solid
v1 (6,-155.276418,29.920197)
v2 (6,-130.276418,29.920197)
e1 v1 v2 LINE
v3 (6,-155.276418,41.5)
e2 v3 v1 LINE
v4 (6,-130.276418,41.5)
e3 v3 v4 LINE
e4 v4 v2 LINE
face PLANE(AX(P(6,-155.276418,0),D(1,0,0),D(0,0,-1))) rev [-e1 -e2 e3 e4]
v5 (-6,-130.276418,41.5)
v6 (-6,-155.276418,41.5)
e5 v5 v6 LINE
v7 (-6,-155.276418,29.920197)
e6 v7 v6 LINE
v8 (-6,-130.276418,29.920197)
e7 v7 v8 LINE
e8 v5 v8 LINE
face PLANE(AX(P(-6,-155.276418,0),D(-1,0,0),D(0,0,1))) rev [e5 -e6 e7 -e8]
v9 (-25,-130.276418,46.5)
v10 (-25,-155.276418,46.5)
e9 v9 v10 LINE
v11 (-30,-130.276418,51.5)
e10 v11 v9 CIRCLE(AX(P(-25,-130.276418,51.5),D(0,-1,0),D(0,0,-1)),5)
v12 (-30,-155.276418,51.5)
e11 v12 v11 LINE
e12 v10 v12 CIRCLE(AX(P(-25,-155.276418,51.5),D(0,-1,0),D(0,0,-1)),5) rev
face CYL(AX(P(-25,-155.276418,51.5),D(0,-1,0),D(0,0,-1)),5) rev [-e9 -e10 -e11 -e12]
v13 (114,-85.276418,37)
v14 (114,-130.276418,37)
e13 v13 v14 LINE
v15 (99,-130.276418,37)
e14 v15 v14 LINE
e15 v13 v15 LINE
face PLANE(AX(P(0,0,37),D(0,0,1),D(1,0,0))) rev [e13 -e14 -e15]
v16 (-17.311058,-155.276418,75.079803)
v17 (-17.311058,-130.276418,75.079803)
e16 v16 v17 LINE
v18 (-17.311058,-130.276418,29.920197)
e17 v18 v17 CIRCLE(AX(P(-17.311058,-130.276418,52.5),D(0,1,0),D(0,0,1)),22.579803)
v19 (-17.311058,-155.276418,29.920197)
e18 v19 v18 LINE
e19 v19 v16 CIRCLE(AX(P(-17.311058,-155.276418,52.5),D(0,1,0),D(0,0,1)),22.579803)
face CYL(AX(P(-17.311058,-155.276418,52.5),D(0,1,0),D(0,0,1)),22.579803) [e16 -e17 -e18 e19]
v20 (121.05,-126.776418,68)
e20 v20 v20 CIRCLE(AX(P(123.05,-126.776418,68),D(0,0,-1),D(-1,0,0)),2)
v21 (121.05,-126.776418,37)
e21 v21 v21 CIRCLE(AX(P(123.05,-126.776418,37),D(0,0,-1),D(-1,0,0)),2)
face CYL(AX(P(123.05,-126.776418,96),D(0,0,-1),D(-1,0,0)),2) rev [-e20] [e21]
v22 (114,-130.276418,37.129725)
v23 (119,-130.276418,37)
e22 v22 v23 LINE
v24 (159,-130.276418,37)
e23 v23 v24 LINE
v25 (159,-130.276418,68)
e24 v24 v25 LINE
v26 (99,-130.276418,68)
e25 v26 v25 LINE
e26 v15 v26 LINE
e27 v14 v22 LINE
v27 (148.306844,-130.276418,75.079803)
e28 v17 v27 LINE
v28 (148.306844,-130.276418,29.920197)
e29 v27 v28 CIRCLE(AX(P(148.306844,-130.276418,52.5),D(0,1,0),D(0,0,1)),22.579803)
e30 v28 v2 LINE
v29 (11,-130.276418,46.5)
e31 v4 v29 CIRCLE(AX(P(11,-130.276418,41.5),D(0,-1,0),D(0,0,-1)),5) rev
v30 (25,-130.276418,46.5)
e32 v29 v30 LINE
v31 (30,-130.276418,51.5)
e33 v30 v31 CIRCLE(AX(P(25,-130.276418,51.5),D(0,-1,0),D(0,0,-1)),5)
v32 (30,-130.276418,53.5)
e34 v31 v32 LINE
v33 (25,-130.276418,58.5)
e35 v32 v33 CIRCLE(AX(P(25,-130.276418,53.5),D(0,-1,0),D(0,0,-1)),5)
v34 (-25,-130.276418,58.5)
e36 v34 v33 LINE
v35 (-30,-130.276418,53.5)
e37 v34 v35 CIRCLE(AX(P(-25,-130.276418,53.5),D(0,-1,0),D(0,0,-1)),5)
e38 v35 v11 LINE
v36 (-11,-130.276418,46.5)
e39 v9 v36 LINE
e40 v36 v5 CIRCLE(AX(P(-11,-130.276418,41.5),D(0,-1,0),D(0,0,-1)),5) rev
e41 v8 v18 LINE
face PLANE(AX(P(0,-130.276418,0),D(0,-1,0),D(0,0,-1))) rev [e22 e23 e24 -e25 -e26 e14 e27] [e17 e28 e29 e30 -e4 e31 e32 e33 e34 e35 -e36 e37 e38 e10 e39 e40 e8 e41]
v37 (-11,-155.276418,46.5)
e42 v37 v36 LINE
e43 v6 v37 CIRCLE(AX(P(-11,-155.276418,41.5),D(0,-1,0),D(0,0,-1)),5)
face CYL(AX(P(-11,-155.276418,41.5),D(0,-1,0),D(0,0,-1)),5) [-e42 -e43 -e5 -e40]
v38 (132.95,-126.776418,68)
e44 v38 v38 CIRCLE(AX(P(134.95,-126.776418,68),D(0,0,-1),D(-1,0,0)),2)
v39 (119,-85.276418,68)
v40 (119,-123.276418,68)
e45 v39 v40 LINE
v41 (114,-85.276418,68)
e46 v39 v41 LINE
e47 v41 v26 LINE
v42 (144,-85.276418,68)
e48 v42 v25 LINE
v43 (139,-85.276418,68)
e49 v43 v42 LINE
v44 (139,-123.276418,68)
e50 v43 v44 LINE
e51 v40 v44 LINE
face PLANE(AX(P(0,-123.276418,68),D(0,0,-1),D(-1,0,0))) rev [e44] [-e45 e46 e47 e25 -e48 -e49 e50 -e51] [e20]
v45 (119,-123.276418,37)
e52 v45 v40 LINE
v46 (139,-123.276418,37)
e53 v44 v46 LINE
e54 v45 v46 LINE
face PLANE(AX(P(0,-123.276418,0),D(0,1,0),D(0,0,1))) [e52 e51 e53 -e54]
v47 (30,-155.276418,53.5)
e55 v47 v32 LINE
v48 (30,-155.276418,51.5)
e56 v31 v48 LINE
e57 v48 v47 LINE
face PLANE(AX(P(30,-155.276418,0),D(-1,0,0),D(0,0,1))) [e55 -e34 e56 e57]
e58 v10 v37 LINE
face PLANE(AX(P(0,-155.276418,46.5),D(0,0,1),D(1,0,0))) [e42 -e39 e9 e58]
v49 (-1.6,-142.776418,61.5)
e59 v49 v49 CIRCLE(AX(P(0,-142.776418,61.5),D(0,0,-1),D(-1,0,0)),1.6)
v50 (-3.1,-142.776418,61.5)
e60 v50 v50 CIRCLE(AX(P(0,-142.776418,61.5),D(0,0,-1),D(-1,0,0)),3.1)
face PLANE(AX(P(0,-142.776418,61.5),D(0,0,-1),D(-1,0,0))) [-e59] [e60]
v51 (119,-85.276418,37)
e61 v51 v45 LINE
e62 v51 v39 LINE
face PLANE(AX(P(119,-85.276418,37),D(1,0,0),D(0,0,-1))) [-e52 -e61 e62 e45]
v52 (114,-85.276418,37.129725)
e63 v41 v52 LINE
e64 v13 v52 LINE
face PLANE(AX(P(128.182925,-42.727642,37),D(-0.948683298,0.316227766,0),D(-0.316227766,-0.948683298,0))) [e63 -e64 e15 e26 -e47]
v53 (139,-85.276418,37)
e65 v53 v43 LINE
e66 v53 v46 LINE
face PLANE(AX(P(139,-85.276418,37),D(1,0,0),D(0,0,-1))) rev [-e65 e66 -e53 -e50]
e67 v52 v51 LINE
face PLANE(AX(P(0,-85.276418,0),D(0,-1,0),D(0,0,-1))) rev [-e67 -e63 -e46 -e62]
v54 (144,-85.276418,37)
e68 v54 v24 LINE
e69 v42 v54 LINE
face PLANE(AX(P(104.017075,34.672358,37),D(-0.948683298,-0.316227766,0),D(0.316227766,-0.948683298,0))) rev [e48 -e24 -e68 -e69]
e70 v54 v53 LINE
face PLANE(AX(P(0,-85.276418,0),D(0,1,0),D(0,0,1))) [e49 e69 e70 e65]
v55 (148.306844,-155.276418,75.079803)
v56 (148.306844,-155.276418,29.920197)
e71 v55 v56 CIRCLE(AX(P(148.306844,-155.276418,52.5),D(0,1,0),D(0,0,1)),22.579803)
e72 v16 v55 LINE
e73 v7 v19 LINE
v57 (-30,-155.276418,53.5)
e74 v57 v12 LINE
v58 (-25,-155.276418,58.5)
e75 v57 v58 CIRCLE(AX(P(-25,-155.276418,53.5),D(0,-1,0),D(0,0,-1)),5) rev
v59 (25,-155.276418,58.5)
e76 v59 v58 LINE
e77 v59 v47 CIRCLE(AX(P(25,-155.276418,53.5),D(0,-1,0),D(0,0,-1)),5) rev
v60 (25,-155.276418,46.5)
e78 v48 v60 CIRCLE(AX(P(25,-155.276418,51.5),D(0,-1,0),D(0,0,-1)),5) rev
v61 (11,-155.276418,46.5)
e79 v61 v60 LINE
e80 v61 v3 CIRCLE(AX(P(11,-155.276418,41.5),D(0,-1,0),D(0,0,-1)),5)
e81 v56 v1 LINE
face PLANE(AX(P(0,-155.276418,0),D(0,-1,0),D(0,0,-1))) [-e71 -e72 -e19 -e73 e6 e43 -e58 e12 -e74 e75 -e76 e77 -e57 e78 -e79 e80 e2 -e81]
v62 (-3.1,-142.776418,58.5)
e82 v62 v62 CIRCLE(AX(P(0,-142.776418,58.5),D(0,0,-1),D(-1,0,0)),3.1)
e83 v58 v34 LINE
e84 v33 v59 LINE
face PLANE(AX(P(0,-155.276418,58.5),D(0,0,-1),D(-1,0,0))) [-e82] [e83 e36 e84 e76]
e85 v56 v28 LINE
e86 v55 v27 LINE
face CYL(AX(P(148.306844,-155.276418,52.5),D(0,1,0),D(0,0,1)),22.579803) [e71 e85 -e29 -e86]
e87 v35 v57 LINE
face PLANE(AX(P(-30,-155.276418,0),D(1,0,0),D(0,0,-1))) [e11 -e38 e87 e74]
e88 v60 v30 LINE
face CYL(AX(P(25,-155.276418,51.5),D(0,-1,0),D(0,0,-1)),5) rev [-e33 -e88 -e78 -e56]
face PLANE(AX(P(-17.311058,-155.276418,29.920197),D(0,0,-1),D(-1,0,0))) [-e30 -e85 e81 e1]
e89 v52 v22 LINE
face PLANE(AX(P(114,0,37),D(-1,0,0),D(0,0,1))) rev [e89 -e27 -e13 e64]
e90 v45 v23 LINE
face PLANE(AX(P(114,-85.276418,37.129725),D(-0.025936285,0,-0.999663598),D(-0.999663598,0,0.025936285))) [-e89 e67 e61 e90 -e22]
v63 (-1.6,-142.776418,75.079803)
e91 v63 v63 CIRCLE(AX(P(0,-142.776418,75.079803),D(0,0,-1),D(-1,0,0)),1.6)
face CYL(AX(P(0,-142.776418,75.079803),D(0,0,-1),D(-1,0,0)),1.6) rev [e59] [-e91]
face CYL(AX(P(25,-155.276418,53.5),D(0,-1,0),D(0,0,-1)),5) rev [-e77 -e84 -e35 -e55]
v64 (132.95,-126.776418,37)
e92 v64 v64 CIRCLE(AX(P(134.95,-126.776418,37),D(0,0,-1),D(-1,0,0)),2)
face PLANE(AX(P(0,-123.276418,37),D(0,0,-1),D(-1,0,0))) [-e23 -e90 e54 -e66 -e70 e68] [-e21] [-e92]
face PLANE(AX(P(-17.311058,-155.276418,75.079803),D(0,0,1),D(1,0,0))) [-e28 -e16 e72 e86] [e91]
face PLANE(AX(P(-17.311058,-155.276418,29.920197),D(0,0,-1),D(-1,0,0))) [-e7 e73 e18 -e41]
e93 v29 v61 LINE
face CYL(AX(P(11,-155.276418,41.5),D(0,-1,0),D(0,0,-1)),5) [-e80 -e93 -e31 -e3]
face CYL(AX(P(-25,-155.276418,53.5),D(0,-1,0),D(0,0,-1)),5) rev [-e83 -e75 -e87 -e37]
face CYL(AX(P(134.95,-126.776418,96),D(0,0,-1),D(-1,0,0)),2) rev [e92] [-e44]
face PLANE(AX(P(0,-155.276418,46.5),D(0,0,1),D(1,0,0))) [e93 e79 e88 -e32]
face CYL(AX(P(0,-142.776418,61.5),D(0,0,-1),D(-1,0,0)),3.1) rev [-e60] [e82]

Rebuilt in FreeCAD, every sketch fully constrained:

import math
import FreeCAD as App
import Part
import Sketcher


def edges_at(feature, points):
    """Names of the edges that pass closest to the given points."""
    edges = feature.Shape.Edges
    near = lambda p: min(range(len(edges)), key=lambda i: edges[i].distToShape(Part.Vertex(*p))[0])
    return sorted({f"Edge{near(p) + 1}" for p in points})


def add_polygon(sketch, points):
    """Adds a closed chain of lines whose ends are joined by coincident constraints."""
    first, n = sketch.GeometryCount, len(points)
    for a, b in zip(points, points[1:] + points[:1]):
        sketch.addGeometry(Part.LineSegment(App.Vector(*a, 0), App.Vector(*b, 0)), False)
    for i in range(n):
        sketch.addConstraint(Sketcher.Constraint("Coincident", first + i, 2, first + (i + 1) % n, 1))

doc = App.newDocument("Part")
params = doc.addObject("Spreadsheet::Sheet", "Params")
for row, (alias, value) in enumerate([
    ("sketch1_radius", "10 mm"),
    ("sketch1_diameter", "3.97 mm"),
    ("pad1_length", "12 mm"),
    ("sketch2_height", "6 mm"),
    ("sketch3_width", "20 mm"),
    ("sketch4_radius", "10 mm"),
    ("sketch4_diameter", "3.97 mm"),
    ("pad2_length", "5 mm"),
    ("sketch5_radius", "10 mm"),
    ("sketch5_diameter", "3.97 mm"),
    ("pad3_length", "5 mm"),
    ("sketch6_width", "30 mm"),
    ("sketch6_height", "10.08 mm"),
    ("sketch7_width", "12 mm"),
    ("pad4_length", "100 mm"),
    ("sketch8_width", "237 mm"),
    ("sketch8_height", "150 mm"),
    ("pad5_length", "25 mm"),
    ("sketch9_width", "20 mm"),
    ("sketch9_height", "31 mm"),
    ("pad6_length", "7 mm"),
    ("sketch10_width", "5 mm"),
    ("sketch10_height", "31 mm"),
    ("pad7_length", "45 mm"),
    ("sketch11_width", "15 mm"),
    ("sketch11_height", "45 mm"),
    ("pad8_length", "31 mm"),
    ("sketch12_diameter", "4 mm"),
    ("sketch13_width", "30 mm"),
    ("sketch13_height", "10.48 mm"),
    ("fillet_radius", "10 mm"),
    ("sketch14_width", "10 mm"),
    ("sketch14_height", "50 mm"),
    ("pad9_length", "12 mm"),
    ("sketch15_width", "50 mm"),
    ("sketch15_height", "10 mm"),
    ("pad10_length", "12 mm"),
    ("sketch16_width", "12 mm"),
    ("pad11_length", "72 mm"),
    ("sketch17_width", "12 mm"),
    ("pad12_length", "34.5 mm"),
    ("sketch18_height", "12 mm"),
    ("sketch20_diameter", "3.4 mm"),
    ("sketch21_width", "60 mm"),
    ("sketch21_width2", "12 mm"),
    ("sketch21_height", "46.5 mm"),
    ("pad13_length", "12 mm"),
    ("pocket9_length", "12 mm"),
    ("sketch23_width", "12 mm"),
    ("pad14_length", "25 mm"),
    ("sketch24_width", "24 mm"),
    ("sketch24_height", "12 mm"),
    ("pad15_length", "12 mm"),
    ("pad15_length2", "25 mm"),
    ("sketch25_width", "24 mm"),
    ("sketch25_width2", "60 mm"),
    ("sketch25_height", "12 mm"),
    ("sketch26_diameter", "6.2 mm"),
    ("pocket11_length", "3 mm"),
    ("sketch27_diameter", "3.2 mm"),
    ("fillet2_radius", "5 mm"),
    ("fillet3_radius", "5 mm"),
], start=1):
    params.set(f"A{row}", alias)
    params.set(f"B{row}", "=" + value)
    params.setAlias(f"B{row}", alias)

body = doc.addObject("PartDesign::Body", "Body")

# Sketch on XY plane
sketch1 = body.newObject("Sketcher::SketchObject", "Sketch")
sketch1.AttachmentSupport = (doc.getObject("XY_Plane"), [""])
sketch1.MapMode = "FlatFace"
sketch1.addGeometry(Part.LineSegment(App.Vector(-10, 0, 0), App.Vector(-10, -30.276418, 0)), False)
sketch1.addGeometry(Part.LineSegment(App.Vector(-10, -30.276418, 0), App.Vector(10, -30.276418, 0)), False)
sketch1.addGeometry(Part.LineSegment(App.Vector(10, -30.276418, 0), App.Vector(10, 0, 0)), False)
sketch1.addGeometry(Part.ArcOfCircle(Part.Circle(App.Vector(0, 0, 0), App.Vector(0, 0, 1), 10), math.radians(0), math.radians(180)), False)
sketch1.addGeometry(Part.Circle(App.Vector(0, 0, 0), App.Vector(0, 0, 1), 1.985), False)
sketch1.addConstraint(Sketcher.Constraint("Coincident", 0, 2, 1, 1))
sketch1.addConstraint(Sketcher.Constraint("Coincident", 1, 2, 2, 1))
sketch1.addConstraint(Sketcher.Constraint("Tangent", 2, 2, 3, 1))
sketch1.addConstraint(Sketcher.Constraint("Tangent", 3, 2, 0, 1))
sketch1.addConstraint(Sketcher.Constraint("Vertical", 0))
sketch1.addConstraint(Sketcher.Constraint("Horizontal", 1))
sketch1.addConstraint(Sketcher.Constraint("Vertical", 2))
sketch1.addConstraint(Sketcher.Constraint("Coincident", 3, 3, -1, 1))
sketch1.addConstraint(Sketcher.Constraint("Coincident", 4, 3, -1, 1))
sketch1.addConstraint(Sketcher.Constraint("Radius", 3, 10.0))
sketch1.addConstraint(Sketcher.Constraint("Diameter", 4, 3.97))
sketch1.addConstraint(Sketcher.Constraint("DistanceY", 0, 2, 0, 1, 30.276418))
sketch1.setExpression("Constraints[9]", "Params.sketch1_radius")
sketch1.setExpression("Constraints[10]", "Params.sketch1_diameter")
pad1 = body.newObject("PartDesign::Pad", "Pad")
pad1.Profile = sketch1
pad1.setExpression("Length", "Params.pad1_length")

# Sketch on YZ plane
sketch2 = body.newObject("Sketcher::SketchObject", "Sketch001")
sketch2.AttachmentSupport = (doc.getObject("YZ_Plane"), [""])
sketch2.MapMode = "FlatFace"
sketch2.AttachmentOffset = App.Placement(App.Vector(0, 0, 10), App.Rotation())
add_polygon(sketch2, [(15.780779, 3), (15.780779, 9), (0, 9), (-20, 8.600534), (-20, 3)])  # lines 0-4
sketch2.addConstraint(Sketcher.Constraint("Vertical", 0))
sketch2.addConstraint(Sketcher.Constraint("Horizontal", 1))
sketch2.addConstraint(Sketcher.Constraint("Vertical", 3))
sketch2.addConstraint(Sketcher.Constraint("Horizontal", 4))
sketch2.addConstraint(Sketcher.Constraint("PointOnObject", 1, 2, -2))
sketch2.addConstraint(Sketcher.Constraint("DistanceY", 0, 1, 0, 2, 6.0))
sketch2.addConstraint(Sketcher.Constraint("DistanceY", -1, 1, 0, 2, 9.0))
sketch2.addConstraint(Sketcher.Constraint("DistanceX", 2, 2, -1, 1, 20.0))
sketch2.addConstraint(Sketcher.Constraint("DistanceX", 1, 2, 1, 1, 15.780779))
sketch2.addConstraint(Sketcher.Constraint("Distance", 2, 20.003989))
sketch2.setExpression("Constraints[10]", "Params.sketch2_height")
pocket1 = body.newObject("PartDesign::Pocket", "Pocket")
pocket1.Profile = sketch2
pocket1.Type = "ThroughAll"

# Sketch on YZ plane
sketch3 = body.newObject("Sketcher::SketchObject", "Sketch002")
sketch3.AttachmentSupport = (doc.getObject("YZ_Plane"), [""])
sketch3.MapMode = "FlatFace"
sketch3.AttachmentOffset = App.Placement(App.Vector(0, 0, 10), App.Rotation())
add_polygon(sketch3, [(0, 9), (-20, 9), (-20, 8.600534)])  # lines 0-2
sketch3.addConstraint(Sketcher.Constraint("Horizontal", 0))
sketch3.addConstraint(Sketcher.Constraint("Vertical", 1))
sketch3.addConstraint(Sketcher.Constraint("PointOnObject", 2, 2, -2))
sketch3.addConstraint(Sketcher.Constraint("DistanceX", 0, 2, 0, 1, 20.0))
sketch3.addConstraint(Sketcher.Constraint("DistanceY", -1, 1, 0, 2, 9.0))
sketch3.addConstraint(Sketcher.Constraint("Distance", 2, 20.003989))
sketch3.setExpression("Constraints[6]", "Params.sketch3_width")
pocket2 = body.newObject("PartDesign::Pocket", "Pocket001")
pocket2.Profile = sketch3
pocket2.Type = "ThroughAll"

# Sketch on XY plane
sketch4 = body.newObject("Sketcher::SketchObject", "Sketch003")
sketch4.AttachmentSupport = (doc.getObject("XY_Plane"), [""])
sketch4.MapMode = "FlatFace"
sketch4.AttachmentOffset = App.Placement(App.Vector(0, 0, 12), App.Rotation())
sketch4.addGeometry(Part.ArcOfCircle(Part.Circle(App.Vector(0, 0, 0), App.Vector(0, 0, 1), 10), math.radians(0), math.radians(180)), False)
sketch4.addGeometry(Part.LineSegment(App.Vector(-10, 0, 0), App.Vector(-10, -30.276418, 0)), False)
sketch4.addGeometry(Part.LineSegment(App.Vector(-10, -30.276418, 0), App.Vector(10, -30.276418, 0)), False)
sketch4.addGeometry(Part.LineSegment(App.Vector(10, -30.276418, 0), App.Vector(10, 0, 0)), False)
sketch4.addGeometry(Part.Circle(App.Vector(0, 0, 0), App.Vector(0, 0, 1), 1.985), False)
sketch4.addConstraint(Sketcher.Constraint("Tangent", 0, 2, 1, 1))
sketch4.addConstraint(Sketcher.Constraint("Coincident", 1, 2, 2, 1))
sketch4.addConstraint(Sketcher.Constraint("Coincident", 2, 2, 3, 1))
sketch4.addConstraint(Sketcher.Constraint("Tangent", 3, 2, 0, 1))
sketch4.addConstraint(Sketcher.Constraint("Vertical", 1))
sketch4.addConstraint(Sketcher.Constraint("Horizontal", 2))
sketch4.addConstraint(Sketcher.Constraint("Vertical", 3))
sketch4.addConstraint(Sketcher.Constraint("Coincident", 0, 3, -1, 1))
sketch4.addConstraint(Sketcher.Constraint("Coincident", 4, 3, -1, 1))
sketch4.addConstraint(Sketcher.Constraint("Radius", 0, 10.0))
sketch4.addConstraint(Sketcher.Constraint("Diameter", 4, 3.97))
sketch4.addConstraint(Sketcher.Constraint("DistanceY", 1, 2, 1, 1, 30.276418))
sketch4.setExpression("Constraints[9]", "Params.sketch4_radius")
sketch4.setExpression("Constraints[10]", "Params.sketch4_diameter")
pad2 = body.newObject("PartDesign::Pad", "Pad001")
pad2.Profile = sketch4
pad2.setExpression("Length", "Params.pad2_length")

# Sketch on XY plane
sketch5 = body.newObject("Sketcher::SketchObject", "Sketch004")
sketch5.AttachmentSupport = (doc.getObject("XY_Plane"), [""])
sketch5.MapMode = "FlatFace"
sketch5.addGeometry(Part.ArcOfCircle(Part.Circle(App.Vector(0, 0, 0), App.Vector(0, 0, 1), 10), math.radians(0), math.radians(180)), False)
sketch5.addGeometry(Part.LineSegment(App.Vector(10, 0, 0), App.Vector(10, -30.276418, 0)), False)
sketch5.addGeometry(Part.LineSegment(App.Vector(10, -30.276418, 0), App.Vector(-10, -30.276418, 0)), False)
sketch5.addGeometry(Part.LineSegment(App.Vector(-10, -30.276418, 0), App.Vector(-10, 0, 0)), False)
sketch5.addGeometry(Part.Circle(App.Vector(0, 0, 0), App.Vector(0, 0, 1), 1.985), False)
sketch5.addConstraint(Sketcher.Constraint("Tangent", 0, 1, 1, 1))
sketch5.addConstraint(Sketcher.Constraint("Coincident", 1, 2, 2, 1))
sketch5.addConstraint(Sketcher.Constraint("Coincident", 2, 2, 3, 1))
sketch5.addConstraint(Sketcher.Constraint("Tangent", 3, 2, 0, 2))
sketch5.addConstraint(Sketcher.Constraint("Vertical", 1))
sketch5.addConstraint(Sketcher.Constraint("Horizontal", 2))
sketch5.addConstraint(Sketcher.Constraint("Vertical", 3))
sketch5.addConstraint(Sketcher.Constraint("Coincident", 0, 3, -1, 1))
sketch5.addConstraint(Sketcher.Constraint("Coincident", 4, 3, -1, 1))
sketch5.addConstraint(Sketcher.Constraint("Radius", 0, 10.0))
sketch5.addConstraint(Sketcher.Constraint("Diameter", 4, 3.97))
sketch5.addConstraint(Sketcher.Constraint("DistanceY", 1, 2, 1, 1, 30.276418))
sketch5.setExpression("Constraints[9]", "Params.sketch5_radius")
sketch5.setExpression("Constraints[10]", "Params.sketch5_diameter")
pad3 = body.newObject("PartDesign::Pad", "Pad002")
pad3.Profile = sketch5
pad3.setExpression("Length", "Params.pad3_length")
pad3.Reversed = True

# Sketch on YZ plane
sketch6 = body.newObject("Sketcher::SketchObject", "Sketch005")
sketch6.AttachmentSupport = (doc.getObject("YZ_Plane"), [""])
sketch6.MapMode = "FlatFace"
sketch6.AttachmentOffset = App.Placement(App.Vector(0, 0, -10), App.Rotation())
add_polygon(sketch6, [(10, 11.04), (10, 0.96), (-20, 0.96), (-20, 11.04)])  # lines 0-3
sketch6.addConstraint(Sketcher.Constraint("Vertical", 0))
sketch6.addConstraint(Sketcher.Constraint("Horizontal", 1))
sketch6.addConstraint(Sketcher.Constraint("Vertical", 2))
sketch6.addConstraint(Sketcher.Constraint("Horizontal", 3))
sketch6.addConstraint(Sketcher.Constraint("DistanceX", 1, 2, 1, 1, 30.0))
sketch6.addConstraint(Sketcher.Constraint("DistanceX", -1, 1, 0, 2, 10.0))
sketch6.addConstraint(Sketcher.Constraint("DistanceY", 0, 2, 0, 1, 10.08))
sketch6.addConstraint(Sketcher.Constraint("DistanceY", -1, 1, 0, 2, 0.96))
sketch6.setExpression("Constraints[8]", "Params.sketch6_width")
sketch6.setExpression("Constraints[10]", "Params.sketch6_height")
pocket3 = body.newObject("PartDesign::Pocket", "Pocket002")
pocket3.Profile = sketch6
pocket3.Type = "ThroughAll"
pocket3.Reversed = True

# Sketch on XZ plane
sketch7 = body.newObject("Sketcher::SketchObject", "Sketch006")
sketch7.AttachmentSupport = (doc.getObject("XZ_Plane"), [""])
sketch7.MapMode = "FlatFace"
sketch7.AttachmentOffset = App.Placement(App.Vector(0, 0, 30.276418), App.Rotation())
add_polygon(sketch7, [(6, 12), (-6, 12), (-6, 0), (6, 0)])  # lines 0-3
sketch7.addConstraint(Sketcher.Constraint("Horizontal", 0))
sketch7.addConstraint(Sketcher.Constraint("Vertical", 1))
sketch7.addConstraint(Sketcher.Constraint("Horizontal", 2))
sketch7.addConstraint(Sketcher.Constraint("Vertical", 3))
sketch7.addConstraint(Sketcher.Constraint("Symmetric", 1, 2, 2, 2, -1, 1))
sketch7.addConstraint(Sketcher.Constraint("Equal", 2, 1))
sketch7.addConstraint(Sketcher.Constraint("DistanceX", 0, 2, 0, 1, 12.0))
sketch7.setExpression("Constraints[10]", "Params.sketch7_width")
pad4 = body.newObject("PartDesign::Pad", "Pad003")
pad4.Profile = sketch7
pad4.setExpression("Length", "Params.pad4_length")

# Sketch on XZ plane
sketch8 = body.newObject("Sketcher::SketchObject", "Sketch007")
sketch8.AttachmentSupport = (doc.getObject("XZ_Plane"), [""])
sketch8.MapMode = "FlatFace"
sketch8.AttachmentOffset = App.Placement(App.Vector(0, 0, 130.276418), App.Rotation())
add_polygon(sketch8, [(176, -54), (176, 96), (-61, 96), (-61, -54)])  # lines 0-3
sketch8.addConstraint(Sketcher.Constraint("Vertical", 0))
sketch8.addConstraint(Sketcher.Constraint("Horizontal", 1))
sketch8.addConstraint(Sketcher.Constraint("Vertical", 2))
sketch8.addConstraint(Sketcher.Constraint("Horizontal", 3))
sketch8.addConstraint(Sketcher.Constraint("DistanceX", 1, 2, 1, 1, 237.0))
sketch8.addConstraint(Sketcher.Constraint("DistanceY", 0, 1, 0, 2, 150.0))
sketch8.addConstraint(Sketcher.Constraint("DistanceX", -1, 1, 0, 2, 176.0))
sketch8.addConstraint(Sketcher.Constraint("DistanceY", -1, 1, 0, 2, 96.0))
sketch8.setExpression("Constraints[8]", "Params.sketch8_width")
sketch8.setExpression("Constraints[9]", "Params.sketch8_height")
pad5 = body.newObject("PartDesign::Pad", "Pad004")
pad5.Profile = sketch8
pad5.setExpression("Length", "Params.pad5_length")

# Sketch on XZ plane
sketch9 = body.newObject("Sketcher::SketchObject", "Sketch008")
sketch9.AttachmentSupport = (doc.getObject("XZ_Plane"), [""])
sketch9.MapMode = "FlatFace"
sketch9.AttachmentOffset = App.Placement(App.Vector(0, 0, 130.276418), App.Rotation())
add_polygon(sketch9, [(119, 68), (139, 68), (139, 37), (119, 37)])  # lines 0-3
sketch9.addConstraint(Sketcher.Constraint("Horizontal", 0))
sketch9.addConstraint(Sketcher.Constraint("Vertical", 1))
sketch9.addConstraint(Sketcher.Constraint("Horizontal", 2))
sketch9.addConstraint(Sketcher.Constraint("Vertical", 3))
sketch9.addConstraint(Sketcher.Constraint("DistanceX", 0, 1, 0, 2, 20.0))
sketch9.addConstraint(Sketcher.Constraint("DistanceY", 1, 2, 1, 1, 31.0))
sketch9.addConstraint(Sketcher.Constraint("DistanceX", -1, 1, 0, 2, 139.0))
sketch9.addConstraint(Sketcher.Constraint("DistanceY", -1, 1, 0, 2, 68.0))
sketch9.setExpression("Constraints[8]", "Params.sketch9_width")
sketch9.setExpression("Constraints[9]", "Params.sketch9_height")
pad6 = body.newObject("PartDesign::Pad", "Pad005")
pad6.Profile = sketch9
pad6.setExpression("Length", "Params.pad6_length")
pad6.Reversed = True

# Sketch on XZ plane
sketch10 = body.newObject("Sketcher::SketchObject", "Sketch009")
sketch10.AttachmentSupport = (doc.getObject("XZ_Plane"), [""])
sketch10.MapMode = "FlatFace"
sketch10.AttachmentOffset = App.Placement(App.Vector(0, 0, 130.276418), App.Rotation())
add_polygon(sketch10, [(114, 68), (119, 68), (119, 37), (114, 37.129725)])  # lines 0-3
add_polygon(sketch10, [(139, 37), (139, 68), (144, 68), (144, 37)])  # lines 4-7
sketch10.addConstraint(Sketcher.Constraint("Horizontal", 0))
sketch10.addConstraint(Sketcher.Constraint("Vertical", 1))
sketch10.addConstraint(Sketcher.Constraint("Vertical", 3))
sketch10.addConstraint(Sketcher.Constraint("Vertical", 4))
sketch10.addConstraint(Sketcher.Constraint("Horizontal", 5))
sketch10.addConstraint(Sketcher.Constraint("Vertical", 6))
sketch10.addConstraint(Sketcher.Constraint("Horizontal", 7))
sketch10.addConstraint(Sketcher.Constraint("Horizontal", 3, 2, 4, 2))
sketch10.addConstraint(Sketcher.Constraint("Horizontal", 1, 2, 6, 2))
sketch10.addConstraint(Sketcher.Constraint("Equal", 0, 5))
sketch10.addConstraint(Sketcher.Constraint("DistanceX", 0, 1, 0, 2, 5.0))
sketch10.addConstraint(Sketcher.Constraint("DistanceY", 1, 2, 1, 1, 31.0))
sketch10.addConstraint(Sketcher.Constraint("DistanceX", -1, 1, 0, 2, 119.0))
sketch10.addConstraint(Sketcher.Constraint("DistanceY", -1, 1, 0, 2, 68.0))
sketch10.addConstraint(Sketcher.Constraint("DistanceX", -1, 1, 4, 2, 139.0))
sketch10.addConstraint(Sketcher.Constraint("DistanceY", 3, 1, 3, 2, 30.870275))
sketch10.setExpression("Constraints[18]", "Params.sketch10_width")
sketch10.setExpression("Constraints[19]", "Params.sketch10_height")
pad7 = body.newObject("PartDesign::Pad", "Pad006")
pad7.Profile = sketch10
pad7.setExpression("Length", "Params.pad7_length")
pad7.Reversed = True

# Sketch on XY plane
sketch11 = body.newObject("Sketcher::SketchObject", "Sketch010")
sketch11.AttachmentSupport = (doc.getObject("XY_Plane"), [""])
sketch11.MapMode = "FlatFace"
sketch11.AttachmentOffset = App.Placement(App.Vector(0, 0, 68), App.Rotation())
add_polygon(sketch11, [(144, -130.276418), (159, -130.276418), (144, -85.276418)])  # lines 0-2
add_polygon(sketch11, [(114, -85.276418), (99, -130.276418), (114, -130.276418)])  # lines 3-5
sketch11.addConstraint(Sketcher.Constraint("Horizontal", 0))
sketch11.addConstraint(Sketcher.Constraint("Vertical", 2))
sketch11.addConstraint(Sketcher.Constraint("Horizontal", 4))
sketch11.addConstraint(Sketcher.Constraint("Vertical", 5))
sketch11.addConstraint(Sketcher.Constraint("Horizontal", 2, 2, 3, 2))
sketch11.addConstraint(Sketcher.Constraint("Horizontal", 1, 2, 5, 2))
sketch11.addConstraint(Sketcher.Constraint("Equal", 0, 4))
sketch11.addConstraint(Sketcher.Constraint("DistanceX", 0, 1, 0, 2, 15.0))
sketch11.addConstraint(Sketcher.Constraint("DistanceY", 2, 2, 2, 1, 45.0))
sketch11.addConstraint(Sketcher.Constraint("DistanceX", -1, 1, 0, 2, 159.0))
sketch11.addConstraint(Sketcher.Constraint("DistanceX", -1, 1, 3, 2, 99.0))
sketch11.addConstraint(Sketcher.Constraint("DistanceY", 0, 2, -1, 1, 130.276418))
sketch11.setExpression("Constraints[13]", "Params.sketch11_width")
sketch11.setExpression("Constraints[14]", "Params.sketch11_height")
pad8 = body.newObject("PartDesign::Pad", "Pad007")
pad8.Profile = sketch11
pad8.setExpression("Length", "Params.pad8_length")
pad8.Reversed = True

# Sketch on XY plane
sketch12 = body.newObject("Sketcher::SketchObject", "Sketch011")
sketch12.AttachmentSupport = (doc.getObject("XY_Plane"), [""])
sketch12.MapMode = "FlatFace"
sketch12.AttachmentOffset = App.Placement(App.Vector(0, 0, 37), App.Rotation())
sketch12.addGeometry(Part.Circle(App.Vector(134.95, -126.776418, 0), App.Vector(0, 0, 1), 2), False)
sketch12.addGeometry(Part.Circle(App.Vector(123.05, -126.776418, 0), App.Vector(0, 0, 1), 2), False)
sketch12.addConstraint(Sketcher.Constraint("Equal", 0, 1))
sketch12.addConstraint(Sketcher.Constraint("Horizontal", 0, 3, 1, 3))
sketch12.addConstraint(Sketcher.Constraint("Diameter", 0, 4.0))
sketch12.addConstraint(Sketcher.Constraint("DistanceX", 1, 3, 0, 3, 11.9))
sketch12.addConstraint(Sketcher.Constraint("DistanceX", -1, 1, 0, 3, 134.95))
sketch12.addConstraint(Sketcher.Constraint("DistanceY", 0, 3, -1, 1, 126.776418))
sketch12.setExpression("Constraints[2]", "Params.sketch12_diameter")
pocket4 = body.newObject("PartDesign::Pocket", "Pocket003")
pocket4.Profile = sketch12
pocket4.Type = "ThroughAll"
pocket4.Reversed = True

# Sketch on YZ plane
sketch13 = body.newObject("Sketcher::SketchObject", "Sketch012")
sketch13.AttachmentSupport = (doc.getObject("YZ_Plane"), [""])
sketch13.MapMode = "FlatFace"
sketch13.AttachmentOffset = App.Placement(App.Vector(0, 0, -10), App.Rotation())
add_polygon(sketch13, [(10, 0.76), (-20, 0.76), (-20, 11.24), (10, 11.24)])  # lines 0-3
sketch13.addConstraint(Sketcher.Constraint("Horizontal", 0))
sketch13.addConstraint(Sketcher.Constraint("Vertical", 1))
sketch13.addConstraint(Sketcher.Constraint("Horizontal", 2))
sketch13.addConstraint(Sketcher.Constraint("Vertical", 3))
sketch13.addConstraint(Sketcher.Constraint("DistanceX", 0, 2, 0, 1, 30.0))
sketch13.addConstraint(Sketcher.Constraint("DistanceX", 0, 2, -1, 1, 20.0))
sketch13.addConstraint(Sketcher.Constraint("DistanceY", 1, 1, 1, 2, 10.48))
sketch13.addConstraint(Sketcher.Constraint("DistanceY", -1, 1, 0, 2, 0.76))
sketch13.setExpression("Constraints[8]", "Params.sketch13_width")
sketch13.setExpression("Constraints[10]", "Params.sketch13_height")
pocket5 = body.newObject("PartDesign::Pocket", "Pocket004")
pocket5.Profile = sketch13
pocket5.Type = "ThroughAll"
pocket5.Reversed = True
doc.recompute()

fillet = body.newObject("PartDesign::Fillet", "Fillet")
fillet.Base = (pocket5, edges_at(pocket5, [
    (-61, -142.776, 96),
    (-61, -142.776, -54),
    (176, -142.776, -54),
    (176, -142.776, 96),
]))
fillet.setExpression("Radius", "Params.fillet_radius")

# Sketch on XY plane
sketch14 = body.newObject("Sketcher::SketchObject", "Sketch013")
sketch14.AttachmentSupport = (doc.getObject("XY_Plane"), [""])
sketch14.MapMode = "FlatFace"
add_polygon(sketch14, [(6, -80.276418), (16, -130.276418), (6, -130.276418)])  # lines 0-2
add_polygon(sketch14, [(-16, -130.276418), (-6, -80.276418), (-6, -130.276418)])  # lines 3-5
sketch14.addConstraint(Sketcher.Constraint("Horizontal", 1))
sketch14.addConstraint(Sketcher.Constraint("Vertical", 2))
sketch14.addConstraint(Sketcher.Constraint("Vertical", 4))
sketch14.addConstraint(Sketcher.Constraint("Horizontal", 5))
sketch14.addConstraint(Sketcher.Constraint("Symmetric", 2, 2, 3, 2, -2))
sketch14.addConstraint(Sketcher.Constraint("Symmetric", 0, 2, 5, 2, -2))
sketch14.addConstraint(Sketcher.Constraint("DistanceX", 1, 2, 1, 1, 10.0))
sketch14.addConstraint(Sketcher.Constraint("DistanceY", 2, 1, 2, 2, 50.0))
sketch14.addConstraint(Sketcher.Constraint("DistanceX", -1, 1, 0, 2, 16.0))
sketch14.addConstraint(Sketcher.Constraint("DistanceY", 0, 2, -1, 1, 130.276418))
sketch14.setExpression("Constraints[12]", "Params.sketch14_width")
sketch14.setExpression("Constraints[13]", "Params.sketch14_height")
pad9 = body.newObject("PartDesign::Pad", "Pad008")
pad9.Profile = sketch14
pad9.setExpression("Length", "Params.pad9_length")

# Sketch on YZ plane
sketch15 = body.newObject("Sketcher::SketchObject", "Sketch014")
sketch15.AttachmentSupport = (doc.getObject("YZ_Plane"), [""])
sketch15.MapMode = "FlatFace"
sketch15.AttachmentOffset = App.Placement(App.Vector(0, 0, 6), App.Rotation())
add_polygon(sketch15, [(-80.276418, 12), (-130.276418, 22), (-130.276418, 12)])  # lines 0-2
add_polygon(sketch15, [(-130.276418, -11.303197), (-80.276418, 0), (-130.276418, 0)])  # lines 3-5
sketch15.addConstraint(Sketcher.Constraint("Vertical", 1))
sketch15.addConstraint(Sketcher.Constraint("Horizontal", 2))
sketch15.addConstraint(Sketcher.Constraint("Horizontal", 4))
sketch15.addConstraint(Sketcher.Constraint("Vertical", 5))
sketch15.addConstraint(Sketcher.Constraint("PointOnObject", 3, 2, -1))
sketch15.addConstraint(Sketcher.Constraint("Vertical", 2, 2, 3, 2))
sketch15.addConstraint(Sketcher.Constraint("Vertical", 1, 2, 4, 2))
sketch15.addConstraint(Sketcher.Constraint("DistanceX", 2, 1, 2, 2, 50.0))
sketch15.addConstraint(Sketcher.Constraint("DistanceY", 1, 2, 1, 1, 10.0))
sketch15.addConstraint(Sketcher.Constraint("DistanceY", -1, 1, 0, 2, 22.0))
sketch15.addConstraint(Sketcher.Constraint("DistanceY", 5, 2, 5, 1, 11.303197))
sketch15.addConstraint(Sketcher.Constraint("DistanceX", 0, 2, -1, 1, 130.276418))
sketch15.setExpression("Constraints[13]", "Params.sketch15_width")
sketch15.setExpression("Constraints[14]", "Params.sketch15_height")
pad10 = body.newObject("PartDesign::Pad", "Pad009")
pad10.Profile = sketch15
pad10.setExpression("Length", "Params.pad10_length")
pad10.Reversed = True

# Sketch on XZ plane
sketch16 = body.newObject("Sketcher::SketchObject", "Sketch015")
sketch16.AttachmentSupport = (doc.getObject("XZ_Plane"), [""])
sketch16.MapMode = "FlatFace"
sketch16.AttachmentOffset = App.Placement(App.Vector(0, 0, 130.276418), App.Rotation())
add_polygon(sketch16, [(-6, 58.5), (6, 58.5), (6, 46.5), (-6, 46.5)])  # lines 0-3
sketch16.addConstraint(Sketcher.Constraint("Horizontal", 0))
sketch16.addConstraint(Sketcher.Constraint("Vertical", 1))
sketch16.addConstraint(Sketcher.Constraint("Horizontal", 2))
sketch16.addConstraint(Sketcher.Constraint("Vertical", 3))
sketch16.addConstraint(Sketcher.Constraint("Equal", 2, 1))
sketch16.addConstraint(Sketcher.Constraint("DistanceX", 0, 1, 0, 2, 12.0))
sketch16.addConstraint(Sketcher.Constraint("DistanceX", -1, 1, 0, 2, 6.0))
sketch16.addConstraint(Sketcher.Constraint("DistanceY", -1, 1, 0, 2, 58.5))
sketch16.setExpression("Constraints[9]", "Params.sketch16_width")
pad11 = body.newObject("PartDesign::Pad", "Pad010")
pad11.Profile = sketch16
pad11.setExpression("Length", "Params.pad11_length")
pad11.Reversed = True

# Sketch on XY plane
sketch17 = body.newObject("Sketcher::SketchObject", "Sketch016")
sketch17.AttachmentSupport = (doc.getObject("XY_Plane"), [""])
sketch17.MapMode = "FlatFace"
sketch17.AttachmentOffset = App.Placement(App.Vector(0, 0, 12), App.Rotation())
add_polygon(sketch17, [(-6, -58.276418), (-6, -70.276418), (6, -70.276418), (6, -58.276418)])  # lines 0-3
sketch17.addConstraint(Sketcher.Constraint("Vertical", 0))
sketch17.addConstraint(Sketcher.Constraint("Horizontal", 1))
sketch17.addConstraint(Sketcher.Constraint("Vertical", 2))
sketch17.addConstraint(Sketcher.Constraint("Horizontal", 3))
sketch17.addConstraint(Sketcher.Constraint("Equal", 3, 0))
sketch17.addConstraint(Sketcher.Constraint("DistanceX", 1, 1, 1, 2, 12.0))
sketch17.addConstraint(Sketcher.Constraint("DistanceX", 0, 2, -1, 1, 6.0))
sketch17.addConstraint(Sketcher.Constraint("DistanceY", 0, 2, -1, 1, 70.276418))
sketch17.setExpression("Constraints[9]", "Params.sketch17_width")
pad12 = body.newObject("PartDesign::Pad", "Pad011")
pad12.Profile = sketch17
pad12.setExpression("Length", "Params.pad12_length")

# Sketch on YZ plane
sketch18 = body.newObject("Sketcher::SketchObject", "Sketch017")
sketch18.AttachmentSupport = (doc.getObject("YZ_Plane"), [""])
sketch18.MapMode = "FlatFace"
sketch18.AttachmentOffset = App.Placement(App.Vector(0, 0, -6), App.Rotation())
add_polygon(sketch18, [(-70.276418, 12), (-70.276418, 0), (-119.054967, -67.391721), (-164.361276, -58.508131), (-164.361276, 22), (-130.276418, 22), (-86.407773, 21.22209)])  # lines 0-6
sketch18.addConstraint(Sketcher.Constraint("Vertical", 0))
sketch18.addConstraint(Sketcher.Constraint("Vertical", 3))
sketch18.addConstraint(Sketcher.Constraint("Horizontal", 4))
sketch18.addConstraint(Sketcher.Constraint("PointOnObject", 0, 2, -1))
sketch18.addConstraint(Sketcher.Constraint("DistanceY", 0, 2, 0, 1, 12.0))
sketch18.addConstraint(Sketcher.Constraint("DistanceY", -1, 1, 3, 2, 22.0))
sketch18.addConstraint(Sketcher.Constraint("DistanceX", 4, 2, 0, 2, 60.0))
sketch18.addConstraint(Sketcher.Constraint("DistanceX", 4, 1, 4, 2, 34.084859))
sketch18.addConstraint(Sketcher.Constraint("DistanceY", 3, 1, 3, 2, 80.508131))
sketch18.addConstraint(Sketcher.Constraint("Distance", 5, 43.875541))
sketch18.addConstraint(Sketcher.Constraint("DistanceY", 1, 2, -1, 1, 67.391721))
sketch18.addConstraint(Sketcher.Constraint("DistanceY", -1, 1, 5, 2, 21.22209))
sketch18.addConstraint(Sketcher.Constraint("DistanceX", 1, 2, 0, 2, 48.778549))
sketch18.addConstraint(Sketcher.Constraint("DistanceX", 0, 2, -1, 1, 70.276418))
sketch18.setExpression("Constraints[11]", "Params.sketch18_height")
pocket6 = body.newObject("PartDesign::Pocket", "Pocket005")
pocket6.Profile = sketch18
pocket6.Type = "ThroughAll"
pocket6.Midplane = True

# Sketch on XZ plane
sketch19 = body.newObject("Sketcher::SketchObject", "Sketch018")
sketch19.AttachmentSupport = (doc.getObject("XZ_Plane"), [""])
sketch19.MapMode = "FlatFace"
sketch19.AttachmentOffset = App.Placement(App.Vector(0, 0, 130.276418), App.Rotation())
add_polygon(sketch19, [(-80.308979, -6.092134), (-80.308979, 111.092134), (196.551781, 111.092134), (196.551781, -6.092134)])  # lines 0-3
sketch19.addGeometry(Part.ArcOfCircle(Part.Circle(App.Vector(-17.311058, 52.5, 0), App.Vector(0, 0, 1), 22.579803), math.radians(90), math.radians(270)), False)  # 4
sketch19.addGeometry(Part.LineSegment(App.Vector(-17.311058, 29.920197, 0), App.Vector(148.306844, 29.920197, 0)), False)  # 5
sketch19.addGeometry(Part.ArcOfCircle(Part.Circle(App.Vector(148.306844, 52.5, 0), App.Vector(0, 0, 1), 22.579803), math.radians(-90), math.radians(90)), False)  # 6
sketch19.addGeometry(Part.LineSegment(App.Vector(148.306844, 75.079803, 0), App.Vector(-17.311058, 75.079803, 0)), False)  # 7
sketch19.addConstraint(Sketcher.Constraint("Tangent", 4, 2, 5, 1))
sketch19.addConstraint(Sketcher.Constraint("Tangent", 5, 2, 6, 1))
sketch19.addConstraint(Sketcher.Constraint("Tangent", 6, 2, 7, 1))
sketch19.addConstraint(Sketcher.Constraint("Tangent", 7, 2, 4, 1))
sketch19.addConstraint(Sketcher.Constraint("Vertical", 0))
sketch19.addConstraint(Sketcher.Constraint("Horizontal", 1))
sketch19.addConstraint(Sketcher.Constraint("Vertical", 2))
sketch19.addConstraint(Sketcher.Constraint("Horizontal", 3))
sketch19.addConstraint(Sketcher.Constraint("Horizontal", 5))
sketch19.addConstraint(Sketcher.Constraint("Horizontal", 7))
sketch19.addConstraint(Sketcher.Constraint("DistanceY", -1, 1, 4, 3, 52.5))
sketch19.addConstraint(Sketcher.Constraint("Radius", 4, 22.579803))
sketch19.addConstraint(Sketcher.Constraint("DistanceX", 1, 1, 1, 2, 276.86076))
sketch19.addConstraint(Sketcher.Constraint("DistanceY", 0, 1, 0, 2, 117.184268))
sketch19.addConstraint(Sketcher.Constraint("DistanceX", 5, 1, 5, 2, 165.617902))
sketch19.addConstraint(Sketcher.Constraint("DistanceX", 4, 3, -1, 1, 17.311058))
sketch19.addConstraint(Sketcher.Constraint("DistanceX", 0, 2, -1, 1, 80.308979))
sketch19.addConstraint(Sketcher.Constraint("DistanceY", 3, 2, 4, 2, 36.012331))
pocket7 = body.newObject("PartDesign::Pocket", "Pocket006")
pocket7.Profile = sketch19
pocket7.Type = "ThroughAll"
pocket7.Reversed = True

# Sketch on XY plane
sketch20 = body.newObject("Sketcher::SketchObject", "Sketch019")
sketch20.AttachmentSupport = (doc.getObject("XY_Plane"), [""])
sketch20.MapMode = "FlatFace"
sketch20.AttachmentOffset = App.Placement(App.Vector(0, 0, 58.5), App.Rotation())
sketch20.addGeometry(Part.Circle(App.Vector(0, -64.276418, 0), App.Vector(0, 0, 1), 1.7), False)
sketch20.addConstraint(Sketcher.Constraint("PointOnObject", 0, 3, -2))
sketch20.addConstraint(Sketcher.Constraint("Diameter", 0, 3.4))
sketch20.addConstraint(Sketcher.Constraint("DistanceY", 0, 3, -1, 1, 64.276418))
sketch20.setExpression("Constraints[1]", "Params.sketch20_diameter")
pocket8 = body.newObject("PartDesign::Pocket", "Pocket007")
pocket8.Profile = sketch20
pocket8.Type = "ThroughAll"
pocket8.Midplane = True

# Sketch on YZ plane
sketch21 = body.newObject("Sketcher::SketchObject", "Sketch020")
sketch21.AttachmentSupport = (doc.getObject("YZ_Plane"), [""])
sketch21.MapMode = "FlatFace"
sketch21.AttachmentOffset = App.Placement(App.Vector(0, 0, -6), App.Rotation())
add_polygon(sketch21, [(-70.276418, 12), (-70.276418, 0), (-130.276418, 0), (-130.276418, 46.5), (-118.276418, 46.5), (-118.276418, 12)])  # lines 0-5
sketch21.addConstraint(Sketcher.Constraint("Vertical", 0))
sketch21.addConstraint(Sketcher.Constraint("Horizontal", 1))
sketch21.addConstraint(Sketcher.Constraint("Vertical", 2))
sketch21.addConstraint(Sketcher.Constraint("Horizontal", 3))
sketch21.addConstraint(Sketcher.Constraint("Vertical", 4))
sketch21.addConstraint(Sketcher.Constraint("Horizontal", 5))
sketch21.addConstraint(Sketcher.Constraint("PointOnObject", 0, 2, -1))
sketch21.addConstraint(Sketcher.Constraint("Equal", 3, 0))
sketch21.addConstraint(Sketcher.Constraint("DistanceX", 1, 2, 1, 1, 60.0))
sketch21.addConstraint(Sketcher.Constraint("DistanceX", 3, 1, 3, 2, 12.0))
sketch21.addConstraint(Sketcher.Constraint("DistanceY", 2, 1, 2, 2, 46.5))
sketch21.addConstraint(Sketcher.Constraint("DistanceX", 0, 2, -1, 1, 70.276418))
sketch21.setExpression("Constraints[14]", "Params.sketch21_width")
sketch21.setExpression("Constraints[15]", "Params.sketch21_width2")
sketch21.setExpression("Constraints[16]", "Params.sketch21_height")
pad13 = body.newObject("PartDesign::Pad", "Pad012")
pad13.Profile = sketch21
pad13.setExpression("Length", "Params.pad13_length")

# Sketch on YZ plane
sketch22 = body.newObject("Sketcher::SketchObject", "Sketch021")
sketch22.AttachmentSupport = (doc.getObject("YZ_Plane"), [""])
sketch22.MapMode = "FlatFace"
sketch22.AttachmentOffset = App.Placement(App.Vector(0, 0, -6), App.Rotation())
add_polygon(sketch22, [(-50.35347, 12), (-118.276418, 12), (-118.276418, 97.717445), (-26.791835, 103.225359)])  # lines 0-3
sketch22.addConstraint(Sketcher.Constraint("Horizontal", 0))
sketch22.addConstraint(Sketcher.Constraint("Vertical", 1))
sketch22.addConstraint(Sketcher.Constraint("DistanceY", -1, 1, 0, 2, 12.0))
sketch22.addConstraint(Sketcher.Constraint("DistanceX", 0, 2, 0, 1, 67.922948))
sketch22.addConstraint(Sketcher.Constraint("DistanceY", 1, 1, 1, 2, 85.717445))
sketch22.addConstraint(Sketcher.Constraint("DistanceY", -1, 1, 2, 2, 103.225359))
sketch22.addConstraint(Sketcher.Constraint("DistanceX", 3, 2, -1, 1, 50.35347))
sketch22.addConstraint(Sketcher.Constraint("Distance", 2, 91.650237))
pocket9 = body.newObject("PartDesign::Pocket", "Pocket008")
pocket9.Profile = sketch22
pocket9.setExpression("Length", "Params.pocket9_length")
pocket9.Reversed = True

# Sketch on XZ plane
sketch23 = body.newObject("Sketcher::SketchObject", "Sketch022")
sketch23.AttachmentSupport = (doc.getObject("XZ_Plane"), [""])
sketch23.MapMode = "FlatFace"
sketch23.AttachmentOffset = App.Placement(App.Vector(0, 0, 130.276418), App.Rotation())
add_polygon(sketch23, [(-6, 29.920197), (-6, 0), (6, 0), (6, 29.920197)])  # lines 0-3
sketch23.addConstraint(Sketcher.Constraint("Vertical", 0))
sketch23.addConstraint(Sketcher.Constraint("Horizontal", 1))
sketch23.addConstraint(Sketcher.Constraint("Vertical", 2))
sketch23.addConstraint(Sketcher.Constraint("Horizontal", 3))
sketch23.addConstraint(Sketcher.Constraint("Symmetric", 0, 2, 1, 2, -1, 1))
sketch23.addConstraint(Sketcher.Constraint("DistanceX", 1, 1, 1, 2, 12.0))
sketch23.addConstraint(Sketcher.Constraint("DistanceY", 0, 2, 0, 1, 29.920197))
sketch23.setExpression("Constraints[9]", "Params.sketch23_width")
pad14 = body.newObject("PartDesign::Pad", "Pad013")
pad14.Profile = sketch23
pad14.setExpression("Length", "Params.pad14_length")

# Sketch on XZ plane
sketch24 = body.newObject("Sketcher::SketchObject", "Sketch023")
sketch24.AttachmentSupport = (doc.getObject("XZ_Plane"), [""])
sketch24.MapMode = "FlatFace"
sketch24.AttachmentOffset = App.Placement(App.Vector(0, 0, 130.276418), App.Rotation())
add_polygon(sketch24, [(6, 46.5), (6, 58.5), (30, 58.5), (30, 46.5)])  # lines 0-3
add_polygon(sketch24, [(-30, 46.5), (-30, 58.5), (-6, 58.5), (-6, 46.5)])  # lines 4-7
sketch24.addConstraint(Sketcher.Constraint("Vertical", 0))
sketch24.addConstraint(Sketcher.Constraint("Horizontal", 1))
sketch24.addConstraint(Sketcher.Constraint("Vertical", 2))
sketch24.addConstraint(Sketcher.Constraint("Horizontal", 3))
sketch24.addConstraint(Sketcher.Constraint("Vertical", 4))
sketch24.addConstraint(Sketcher.Constraint("Horizontal", 5))
sketch24.addConstraint(Sketcher.Constraint("Vertical", 6))
sketch24.addConstraint(Sketcher.Constraint("Horizontal", 7))
sketch24.addConstraint(Sketcher.Constraint("Symmetric", 1, 2, 4, 2, -2))
sketch24.addConstraint(Sketcher.Constraint("Symmetric", 3, 2, 6, 2, -2))
sketch24.addConstraint(Sketcher.Constraint("DistanceX", 1, 1, 1, 2, 24.0))
sketch24.addConstraint(Sketcher.Constraint("DistanceY", 0, 1, 0, 2, 12.0))
sketch24.addConstraint(Sketcher.Constraint("DistanceX", -1, 1, 0, 2, 6.0))
sketch24.addConstraint(Sketcher.Constraint("DistanceY", -1, 1, 0, 2, 58.5))
sketch24.setExpression("Constraints[18]", "Params.sketch24_width")
sketch24.setExpression("Constraints[19]", "Params.sketch24_height")
pad15 = body.newObject("PartDesign::Pad", "Pad014")
pad15.Profile = sketch24
pad15.Type = "TwoLengths"
pad15.setExpression("Length", "Params.pad15_length")
pad15.setExpression("Length2", "Params.pad15_length2")
pad15.Reversed = True

# Sketch on XZ plane
sketch25 = body.newObject("Sketcher::SketchObject", "Sketch024")
sketch25.AttachmentSupport = (doc.getObject("XZ_Plane"), [""])
sketch25.MapMode = "FlatFace"
sketch25.AttachmentOffset = App.Placement(App.Vector(0, 0, 130.276418), App.Rotation())
add_polygon(sketch25, [(-6, 46.5), (-30, 46.5), (-30, 58.5), (30, 58.5), (30, 46.5), (6, 46.5), (6, 25.627648), (24.570909, 19.281918), (2.903682, -31.931527), (-27.080258, -24.052535), (-16.735278, 15.315863), (-15.070735, 21.650371), (-6, 26.78181)])  # lines 0-12
sketch25.addConstraint(Sketcher.Constraint("Horizontal", 0))
sketch25.addConstraint(Sketcher.Constraint("Vertical", 1))
sketch25.addConstraint(Sketcher.Constraint("Horizontal", 2))
sketch25.addConstraint(Sketcher.Constraint("Vertical", 3))
sketch25.addConstraint(Sketcher.Constraint("Horizontal", 4))
sketch25.addConstraint(Sketcher.Constraint("Vertical", 5))
sketch25.addConstraint(Sketcher.Constraint("Vertical", 12))
sketch25.addConstraint(Sketcher.Constraint("Symmetric", 0, 2, 3, 2, -2))
sketch25.addConstraint(Sketcher.Constraint("Perpendicular", 8, 9))
sketch25.addConstraint(Sketcher.Constraint("Parallel", 9, 10))
sketch25.addConstraint(Sketcher.Constraint("Equal", 0, 4))
sketch25.addConstraint(Sketcher.Constraint("DistanceX", 0, 2, 0, 1, 24.0))
sketch25.addConstraint(Sketcher.Constraint("DistanceX", 2, 1, 2, 2, 60.0))
sketch25.addConstraint(Sketcher.Constraint("DistanceY", 1, 1, 1, 2, 12.0))
sketch25.addConstraint(Sketcher.Constraint("DistanceY", -1, 1, 0, 2, 46.5))
sketch25.addConstraint(Sketcher.Constraint("DistanceY", 12, 1, 12, 2, 19.71819))
sketch25.addConstraint(Sketcher.Constraint("Distance", 6, 19.625161))
sketch25.addConstraint(Sketcher.Constraint("DistanceY", 5, 2, 5, 1, 20.872352))
sketch25.addConstraint(Sketcher.Constraint("DistanceX", -1, 1, 6, 2, 24.570909))
sketch25.addConstraint(Sketcher.Constraint("DistanceX", -1, 1, 7, 2, 2.903682))
sketch25.addConstraint(Sketcher.Constraint("DistanceX", 8, 2, -1, 1, 27.080258))
sketch25.addConstraint(Sketcher.Constraint("DistanceY", -1, 1, 10, 2, 21.650371))
sketch25.addConstraint(Sketcher.Constraint("DistanceY", 7, 2, 8, 2, 7.878992))
sketch25.addConstraint(Sketcher.Constraint("DistanceX", 8, 2, 9, 2, 10.34498))
sketch25.addConstraint(Sketcher.Constraint("DistanceY", 9, 2, 10, 2, 6.334509))
sketch25.setExpression("Constraints[24]", "Params.sketch25_width")
sketch25.setExpression("Constraints[25]", "Params.sketch25_width2")
sketch25.setExpression("Constraints[26]", "Params.sketch25_height")
pocket10 = body.newObject("PartDesign::Pocket", "Pocket009")
pocket10.Profile = sketch25
pocket10.Type = "ThroughAll"
pocket10.Midplane = True

# Sketch on XY plane
sketch26 = body.newObject("Sketcher::SketchObject", "Sketch025")
sketch26.AttachmentSupport = (doc.getObject("XY_Plane"), [""])
sketch26.MapMode = "FlatFace"
sketch26.AttachmentOffset = App.Placement(App.Vector(0, 0, 58.5), App.Rotation())
sketch26.addGeometry(Part.Circle(App.Vector(0, -142.776418, 0), App.Vector(0, 0, 1), 3.1), False)
sketch26.addConstraint(Sketcher.Constraint("PointOnObject", 0, 3, -2))
sketch26.addConstraint(Sketcher.Constraint("Diameter", 0, 6.2))
sketch26.addConstraint(Sketcher.Constraint("DistanceY", 0, 3, -1, 1, 142.776418))
sketch26.setExpression("Constraints[1]", "Params.sketch26_diameter")
pocket11 = body.newObject("PartDesign::Pocket", "Pocket010")
pocket11.Profile = sketch26
pocket11.setExpression("Length", "Params.pocket11_length")
pocket11.Reversed = True

# Sketch on XY plane
sketch27 = body.newObject("Sketcher::SketchObject", "Sketch026")
sketch27.AttachmentSupport = (doc.getObject("XY_Plane"), [""])
sketch27.MapMode = "FlatFace"
sketch27.AttachmentOffset = App.Placement(App.Vector(0, 0, 61.5), App.Rotation())
sketch27.addGeometry(Part.Circle(App.Vector(0, -142.776418, 0), App.Vector(0, 0, 1), 1.6), False)
sketch27.addConstraint(Sketcher.Constraint("PointOnObject", 0, 3, -2))
sketch27.addConstraint(Sketcher.Constraint("Diameter", 0, 3.2))
sketch27.addConstraint(Sketcher.Constraint("DistanceY", 0, 3, -1, 1, 142.776418))
sketch27.setExpression("Constraints[1]", "Params.sketch27_diameter")
pocket12 = body.newObject("PartDesign::Pocket", "Pocket011")
pocket12.Profile = sketch27
pocket12.Type = "ThroughAll"
pocket12.Reversed = True
doc.recompute()

fillet2 = body.newObject("PartDesign::Fillet", "Fillet001")
fillet2.Base = (pocket12, edges_at(pocket12, [(30, -142.776, 58.5)]))
fillet2.setExpression("Radius", "Params.fillet2_radius")
doc.recompute()

fillet3 = body.newObject("PartDesign::Fillet", "Fillet002")
fillet3.Base = (fillet2, edges_at(fillet2, [
    (30, -142.776, 46.5),
    (6, -142.776, 46.5),
    (-30, -142.776, 46.5),
    (-30, -142.776, 58.5),
    (-6, -142.776, 46.5),
]))
fillet3.setExpression("Radius", "Params.fillet3_radius")

doc.recompute()
